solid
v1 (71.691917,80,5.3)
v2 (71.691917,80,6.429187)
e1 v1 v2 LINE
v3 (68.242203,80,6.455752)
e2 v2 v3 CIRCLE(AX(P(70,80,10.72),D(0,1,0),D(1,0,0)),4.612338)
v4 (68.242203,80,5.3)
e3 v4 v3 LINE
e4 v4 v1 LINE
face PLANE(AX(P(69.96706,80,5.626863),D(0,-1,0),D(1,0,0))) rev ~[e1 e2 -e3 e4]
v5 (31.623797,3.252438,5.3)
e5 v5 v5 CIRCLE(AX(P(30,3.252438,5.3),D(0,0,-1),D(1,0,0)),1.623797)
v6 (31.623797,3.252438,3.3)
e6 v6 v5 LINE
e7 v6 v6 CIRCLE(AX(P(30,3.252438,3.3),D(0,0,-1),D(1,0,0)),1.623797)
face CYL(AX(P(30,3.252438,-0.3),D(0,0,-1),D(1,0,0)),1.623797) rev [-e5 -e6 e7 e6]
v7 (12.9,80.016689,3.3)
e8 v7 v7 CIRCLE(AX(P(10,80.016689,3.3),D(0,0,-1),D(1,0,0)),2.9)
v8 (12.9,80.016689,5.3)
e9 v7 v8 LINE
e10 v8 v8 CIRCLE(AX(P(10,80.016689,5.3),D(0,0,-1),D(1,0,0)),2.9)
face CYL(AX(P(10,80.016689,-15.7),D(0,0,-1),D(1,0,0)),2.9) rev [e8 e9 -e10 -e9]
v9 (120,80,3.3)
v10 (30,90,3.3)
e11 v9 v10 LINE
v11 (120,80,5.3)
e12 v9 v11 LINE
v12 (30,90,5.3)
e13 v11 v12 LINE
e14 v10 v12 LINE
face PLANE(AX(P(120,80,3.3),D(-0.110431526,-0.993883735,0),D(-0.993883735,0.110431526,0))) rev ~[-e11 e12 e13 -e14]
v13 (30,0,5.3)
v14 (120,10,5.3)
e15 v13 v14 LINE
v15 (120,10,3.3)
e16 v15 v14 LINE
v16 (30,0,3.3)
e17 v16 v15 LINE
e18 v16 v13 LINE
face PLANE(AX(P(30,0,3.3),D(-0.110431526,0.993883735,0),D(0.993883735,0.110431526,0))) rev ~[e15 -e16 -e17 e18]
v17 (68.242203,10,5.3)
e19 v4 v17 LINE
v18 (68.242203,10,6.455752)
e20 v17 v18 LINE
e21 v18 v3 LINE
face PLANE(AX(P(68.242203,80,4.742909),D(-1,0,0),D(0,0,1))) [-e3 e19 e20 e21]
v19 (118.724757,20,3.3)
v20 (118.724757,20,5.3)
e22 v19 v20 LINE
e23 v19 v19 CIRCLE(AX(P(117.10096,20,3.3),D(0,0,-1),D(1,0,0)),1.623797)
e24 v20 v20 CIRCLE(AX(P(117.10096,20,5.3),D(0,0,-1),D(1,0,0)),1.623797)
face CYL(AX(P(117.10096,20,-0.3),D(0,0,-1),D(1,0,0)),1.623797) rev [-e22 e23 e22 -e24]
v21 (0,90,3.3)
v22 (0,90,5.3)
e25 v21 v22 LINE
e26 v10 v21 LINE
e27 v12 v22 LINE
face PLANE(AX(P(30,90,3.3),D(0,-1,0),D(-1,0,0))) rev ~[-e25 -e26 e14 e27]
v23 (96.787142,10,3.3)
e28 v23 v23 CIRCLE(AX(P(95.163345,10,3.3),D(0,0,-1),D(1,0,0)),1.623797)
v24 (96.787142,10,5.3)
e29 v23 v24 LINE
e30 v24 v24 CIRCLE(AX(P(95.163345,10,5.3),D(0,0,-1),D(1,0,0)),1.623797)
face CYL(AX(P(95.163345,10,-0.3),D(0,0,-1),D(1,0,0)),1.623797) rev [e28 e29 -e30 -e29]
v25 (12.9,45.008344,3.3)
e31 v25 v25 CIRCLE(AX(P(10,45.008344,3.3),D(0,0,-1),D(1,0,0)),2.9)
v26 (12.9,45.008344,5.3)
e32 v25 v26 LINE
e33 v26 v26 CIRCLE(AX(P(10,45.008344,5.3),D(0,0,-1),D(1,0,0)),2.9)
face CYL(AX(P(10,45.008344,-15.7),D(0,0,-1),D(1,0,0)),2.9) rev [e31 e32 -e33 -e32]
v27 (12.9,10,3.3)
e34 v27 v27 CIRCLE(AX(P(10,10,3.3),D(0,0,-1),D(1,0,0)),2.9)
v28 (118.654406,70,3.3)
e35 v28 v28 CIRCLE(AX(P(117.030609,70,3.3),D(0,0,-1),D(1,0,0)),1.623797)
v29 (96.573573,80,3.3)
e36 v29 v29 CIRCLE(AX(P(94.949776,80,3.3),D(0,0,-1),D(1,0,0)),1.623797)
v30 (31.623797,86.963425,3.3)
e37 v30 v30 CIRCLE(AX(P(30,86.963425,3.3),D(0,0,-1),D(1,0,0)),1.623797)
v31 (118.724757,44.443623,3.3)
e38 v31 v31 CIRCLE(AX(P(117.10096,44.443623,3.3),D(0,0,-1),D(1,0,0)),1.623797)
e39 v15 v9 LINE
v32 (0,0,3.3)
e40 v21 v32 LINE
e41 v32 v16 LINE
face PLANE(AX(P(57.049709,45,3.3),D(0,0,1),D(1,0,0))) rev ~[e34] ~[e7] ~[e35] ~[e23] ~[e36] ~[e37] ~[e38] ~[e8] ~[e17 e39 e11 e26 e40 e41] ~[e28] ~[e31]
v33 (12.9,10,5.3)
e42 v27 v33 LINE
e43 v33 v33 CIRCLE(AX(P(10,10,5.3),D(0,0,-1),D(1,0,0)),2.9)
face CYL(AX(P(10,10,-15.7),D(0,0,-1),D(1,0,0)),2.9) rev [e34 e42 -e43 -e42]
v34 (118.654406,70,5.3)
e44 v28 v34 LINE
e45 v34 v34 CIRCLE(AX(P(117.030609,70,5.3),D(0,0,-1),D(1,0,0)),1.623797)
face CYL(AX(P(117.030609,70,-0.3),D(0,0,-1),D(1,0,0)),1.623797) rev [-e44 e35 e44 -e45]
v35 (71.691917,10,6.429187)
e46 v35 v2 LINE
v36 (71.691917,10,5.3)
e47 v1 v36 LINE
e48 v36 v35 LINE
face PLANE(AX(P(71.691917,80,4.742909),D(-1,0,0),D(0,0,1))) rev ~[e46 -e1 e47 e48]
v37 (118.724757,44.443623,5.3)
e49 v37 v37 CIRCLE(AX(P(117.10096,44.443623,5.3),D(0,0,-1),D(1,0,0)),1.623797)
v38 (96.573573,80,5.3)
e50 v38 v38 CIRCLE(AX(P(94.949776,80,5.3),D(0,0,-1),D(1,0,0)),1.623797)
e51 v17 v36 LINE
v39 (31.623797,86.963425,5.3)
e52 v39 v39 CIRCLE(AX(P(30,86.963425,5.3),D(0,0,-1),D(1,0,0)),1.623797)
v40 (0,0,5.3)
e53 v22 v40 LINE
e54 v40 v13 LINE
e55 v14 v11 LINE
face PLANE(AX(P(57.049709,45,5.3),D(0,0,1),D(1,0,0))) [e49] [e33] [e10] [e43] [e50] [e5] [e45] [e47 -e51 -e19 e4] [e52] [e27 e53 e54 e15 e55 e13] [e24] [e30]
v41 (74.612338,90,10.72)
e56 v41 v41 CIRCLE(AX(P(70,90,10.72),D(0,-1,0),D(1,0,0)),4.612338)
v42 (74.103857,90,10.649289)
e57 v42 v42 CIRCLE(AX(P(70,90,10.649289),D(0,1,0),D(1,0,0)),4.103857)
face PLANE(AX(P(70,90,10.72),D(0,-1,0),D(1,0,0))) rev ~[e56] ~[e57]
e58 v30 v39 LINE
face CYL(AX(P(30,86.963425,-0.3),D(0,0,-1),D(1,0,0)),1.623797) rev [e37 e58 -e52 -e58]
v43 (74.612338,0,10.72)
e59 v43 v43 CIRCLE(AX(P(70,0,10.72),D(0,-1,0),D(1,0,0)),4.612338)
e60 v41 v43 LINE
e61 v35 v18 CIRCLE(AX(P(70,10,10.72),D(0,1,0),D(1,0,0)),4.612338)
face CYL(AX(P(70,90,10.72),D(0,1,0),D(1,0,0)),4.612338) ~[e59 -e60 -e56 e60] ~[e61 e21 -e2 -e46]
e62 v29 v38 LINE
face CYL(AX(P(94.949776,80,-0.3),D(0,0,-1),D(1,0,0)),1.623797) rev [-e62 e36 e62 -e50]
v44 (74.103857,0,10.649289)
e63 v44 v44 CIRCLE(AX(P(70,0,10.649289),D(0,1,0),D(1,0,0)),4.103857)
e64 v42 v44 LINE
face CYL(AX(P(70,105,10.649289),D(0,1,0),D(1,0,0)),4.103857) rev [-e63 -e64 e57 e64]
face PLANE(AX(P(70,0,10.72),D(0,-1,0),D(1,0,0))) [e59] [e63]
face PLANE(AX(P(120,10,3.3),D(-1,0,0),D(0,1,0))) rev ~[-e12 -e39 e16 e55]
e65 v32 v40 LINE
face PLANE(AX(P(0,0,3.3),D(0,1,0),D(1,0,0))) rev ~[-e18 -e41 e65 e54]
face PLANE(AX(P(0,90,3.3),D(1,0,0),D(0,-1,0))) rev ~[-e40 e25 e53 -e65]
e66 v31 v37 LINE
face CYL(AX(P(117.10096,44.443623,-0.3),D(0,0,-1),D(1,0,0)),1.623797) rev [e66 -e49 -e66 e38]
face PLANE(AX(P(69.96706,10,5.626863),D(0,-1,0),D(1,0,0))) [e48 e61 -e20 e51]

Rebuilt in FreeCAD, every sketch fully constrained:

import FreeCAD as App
import Part
import Sketcher

doc = App.newDocument("Part")
params = doc.addObject("Spreadsheet::Sheet", "Params")
for row, (alias, value) in enumerate([
    ("pad1_length", "120 mm"),
    ("pad2_length", "90 mm"),
    ("pad3_length", "70 mm"),
    ("pad4_length", "10 mm"),
    ("sketch5_diameter", "5.8 mm"),
    ("pad5_length", "50 mm"),
    ("sketch6_width", "30 mm"),
    ("sketch6_height", "70 mm"),
    ("sketch6_height2", "90 mm"),
    ("pad6_length", "2 mm"),
], start=1):
    params.set(f"A{row}", alias)
    params.set(f"B{row}", "=" + value)
    params.setAlias(f"B{row}", alias)

body = doc.addObject("PartDesign::Body", "Body")

# Sketch on XZ plane
sketch1 = doc.addObject("Sketcher::SketchObject", "Sketch")
body.addObject(sketch1)
sketch1.AttachmentSupport = (doc.XZ_Plane, [""])
sketch1.MapMode = "FlatFace"
sketch1.addGeometry(Part.Circle(App.Vector(70, 3.5, 0), App.Vector(0, 0, 1), 4.1), False)
sketch1.addConstraint(Sketcher.Constraint("DistanceX", -1, 1, 0, 3, 70.0))
sketch1.addConstraint(Sketcher.Constraint("Diameter", 0, 8.207714))
sketch1.addConstraint(Sketcher.Constraint("DistanceY", -1, 1, 0, 3, 3.549289))
pad1 = doc.addObject("PartDesign::Pad", "Pad")
body.addObject(pad1)
pad1.Profile = sketch1
pad1.setExpression("Length", "Params.pad1_length")
body2 = doc.addObject("PartDesign::Body", "Body001")
doc.recompute()

body.Placement = App.Placement(App.Vector(0, 105, 0), App.Rotation(App.Vector(0, 0, 1), 0))
boolean = doc.addObject("PartDesign::Boolean", "Boolean")
body2.addObject(boolean)
boolean.Type = "Fuse"
boolean.addObjects([body])
body3 = doc.addObject("PartDesign::Body", "Body002")

# Sketch on XZ plane
sketch2 = doc.addObject("Sketcher::SketchObject", "Sketch001")
body3.addObject(sketch2)
sketch2.AttachmentSupport = (doc.getObject("XZ_Plane002"), [""])
sketch2.MapMode = "FlatFace"
sketch2.addGeometry(Part.Circle(App.Vector(70, 3.6, 0), App.Vector(0, 0, 1), 4.6), False)
sketch2.addConstraint(Sketcher.Constraint("DistanceX", -1, 1, 0, 3, 70.0))
sketch2.addConstraint(Sketcher.Constraint("DistanceY", -1, 1, 0, 3, 3.62))
sketch2.addConstraint(Sketcher.Constraint("Diameter", 0, 9.224676))
pad2 = doc.addObject("PartDesign::Pad", "Pad001")
body3.addObject(pad2)
pad2.Profile = sketch2
pad2.setExpression("Length", "Params.pad2_length")
body4 = doc.addObject("PartDesign::Body", "Body003")
doc.recompute()

body3.Placement = App.Placement(App.Vector(0, 90, 0), App.Rotation(App.Vector(0, 0, 1), 0))
boolean2 = doc.addObject("PartDesign::Boolean", "Boolean001")
body4.addObject(boolean2)
boolean2.Type = "Fuse"
boolean2.addObjects([body3])
doc.recompute()

boolean3 = doc.addObject("PartDesign::Boolean", "Boolean002")
body4.addObject(boolean3)
boolean3.Type = "Cut"
boolean3.addObjects([body2])
body5 = doc.addObject("PartDesign::Body", "Body004")

# Sketch on XZ plane
sketch3 = doc.addObject("Sketcher::SketchObject", "Sketch002")
body5.addObject(sketch3)
sketch3.AttachmentSupport = (doc.getObject("XZ_Plane004"), [""])
sketch3.MapMode = "FlatFace"
sketch3.addGeometry(Part.LineSegment(App.Vector(68.2, -0.6, 0), App.Vector(68.2, -2.4, 0)), False)
sketch3.addGeometry(Part.LineSegment(App.Vector(68.2, -2.4, 0), App.Vector(71.7, -2.4, 0)), False)
sketch3.addGeometry(Part.LineSegment(App.Vector(71.7, -2.4, 0), App.Vector(71.7, -0.6, 0)), False)
sketch3.addGeometry(Part.LineSegment(App.Vector(71.7, -0.6, 0), App.Vector(68.2, -0.6, 0)), False)
sketch3.addConstraint(Sketcher.Constraint("Coincident", 0, 2, 1, 1))
sketch3.addConstraint(Sketcher.Constraint("Coincident", 1, 2, 2, 1))
sketch3.addConstraint(Sketcher.Constraint("Coincident", 2, 2, 3, 1))
sketch3.addConstraint(Sketcher.Constraint("Coincident", 3, 2, 0, 1))
sketch3.addConstraint(Sketcher.Constraint("Vertical", 0))
sketch3.addConstraint(Sketcher.Constraint("Horizontal", 1))
sketch3.addConstraint(Sketcher.Constraint("Vertical", 2))
sketch3.addConstraint(Sketcher.Constraint("Horizontal", 3))
sketch3.addConstraint(Sketcher.Constraint("DistanceY", 0, 2, 0, 1, 1.767909))
sketch3.addConstraint(Sketcher.Constraint("DistanceX", 1, 1, 1, 2, 3.449714))
sketch3.addConstraint(Sketcher.Constraint("DistanceY", 0, 2, -1, 1, 2.357092))
sketch3.addConstraint(Sketcher.Constraint("DistanceX", -1, 1, 0, 2, 68.242203))
pad3 = doc.addObject("PartDesign::Pad", "Pad002")
body5.addObject(pad3)
pad3.Profile = sketch3
pad3.setExpression("Length", "Params.pad3_length")
body6 = doc.addObject("PartDesign::Body", "Body005")
doc.recompute()

body5.Placement = App.Placement(App.Vector(0, 80, 0), App.Rotation(App.Vector(0, 0, 1), 0))
boolean4 = doc.addObject("PartDesign::Boolean", "Boolean003")
body6.addObject(boolean4)
boolean4.Type = "Fuse"
boolean4.addObjects([body5])
doc.recompute()

boolean5 = doc.addObject("PartDesign::Boolean", "Boolean004")
body6.addObject(boolean5)
boolean5.Type = "Fuse"
boolean5.addObjects([body4])
body7 = doc.addObject("PartDesign::Body", "Body006")
doc.recompute()

body6.Placement = App.Placement(App.Vector(0, 0, -8.2), App.Rotation(App.Vector(0, 0, 1), 0))
boolean6 = doc.addObject("PartDesign::Boolean", "Boolean005")
body7.addObject(boolean6)
boolean6.Type = "Fuse"
boolean6.addObjects([body6])
body8 = doc.addObject("PartDesign::Body", "Body007")
body8.AllowCompound = True

# Sketch on XY plane
sketch4 = doc.addObject("Sketcher::SketchObject", "Sketch003")
body8.addObject(sketch4)
sketch4.AttachmentSupport = (doc.getObject("XY_Plane007"), [""])
sketch4.MapMode = "FlatFace"
sketch4.AttachmentOffset = App.Placement(App.Vector(0, 0, 12.1), App.Rotation())
sketch4.addGeometry(Part.Circle(App.Vector(30, 87, 0), App.Vector(0, 0, 1), 1.6), False)
sketch4.addGeometry(Part.Circle(App.Vector(30, 3.3, 0), App.Vector(0, 0, 1), 1.6), False)
sketch4.addGeometry(Part.Circle(App.Vector(95.2, 10, 0), App.Vector(0, 0, 1), 1.6), False)
sketch4.addGeometry(Part.Circle(App.Vector(94.9, 80, 0), App.Vector(0, 0, 1), 1.6), False)
sketch4.addGeometry(Part.Circle(App.Vector(117.1, 20, 0), App.Vector(0, 0, 1), 1.6), False)
sketch4.addGeometry(Part.Circle(App.Vector(117, 70, 0), App.Vector(0, 0, 1), 1.6), False)
sketch4.addGeometry(Part.Circle(App.Vector(117.1, 44.4, 0), App.Vector(0, 0, 1), 1.6), False)
sketch4.addConstraint(Sketcher.Constraint("Equal", 0, 1))
sketch4.addConstraint(Sketcher.Constraint("Equal", 1, 2))
sketch4.addConstraint(Sketcher.Constraint("Equal", 2, 3))
sketch4.addConstraint(Sketcher.Constraint("Equal", 3, 4))
sketch4.addConstraint(Sketcher.Constraint("Equal", 4, 5))
sketch4.addConstraint(Sketcher.Constraint("Equal", 5, 6))
sketch4.addConstraint(Sketcher.Constraint("Vertical", 0, 3, 1, 3))
sketch4.addConstraint(Sketcher.Constraint("Vertical", 4, 3, 6, 3))
sketch4.addConstraint(Sketcher.Constraint("DistanceX", -1, 1, 0, 3, 30.0))
sketch4.addConstraint(Sketcher.Constraint("DistanceY", -1, 1, 2, 3, 10.0))
sketch4.addConstraint(Sketcher.Constraint("DistanceY", -1, 1, 3, 3, 80.0))
sketch4.addConstraint(Sketcher.Constraint("DistanceY", -1, 1, 4, 3, 20.0))
sketch4.addConstraint(Sketcher.Constraint("DistanceY", -1, 1, 5, 3, 70.0))
sketch4.addConstraint(Sketcher.Constraint("Diameter", 0, 3.247594))
sketch4.addConstraint(Sketcher.Constraint("DistanceY", -1, 1, 1, 3, 3.252438))
sketch4.addConstraint(Sketcher.Constraint("DistanceX", -1, 1, 4, 3, 117.10096))
sketch4.addConstraint(Sketcher.Constraint("DistanceX", -1, 1, 5, 3, 117.030609))
sketch4.addConstraint(Sketcher.Constraint("DistanceX", 3, 3, 2, 3, 0.213569))
sketch4.addConstraint(Sketcher.Constraint("DistanceY", -1, 1, 0, 3, 86.963425))
sketch4.addConstraint(Sketcher.Constraint("DistanceX", -1, 1, 2, 3, 95.163345))
sketch4.addConstraint(Sketcher.Constraint("DistanceY", -1, 1, 6, 3, 44.443623))
pad4 = doc.addObject("PartDesign::Pad", "Pad003")
body8.addObject(pad4)
pad4.Profile = sketch4
pad4.setExpression("Length", "Params.pad4_length")
body9 = doc.addObject("PartDesign::Body", "Body008")
body9.AllowCompound = True
doc.recompute()

body8.Placement = App.Placement(App.Vector(0, 0, -27.7), App.Rotation(App.Vector(0, 0, 1), 0))
boolean7 = doc.addObject("PartDesign::Boolean", "Boolean006")
body9.addObject(boolean7)
boolean7.Type = "Fuse"
boolean7.addObjects([body8])
body10 = doc.addObject("PartDesign::Body", "Body009")
body10.AllowCompound = True

# Sketch on XY plane
sketch5 = doc.addObject("Sketcher::SketchObject", "Sketch004")
body10.addObject(sketch5)
sketch5.AttachmentSupport = (doc.getObject("XY_Plane009"), [""])
sketch5.MapMode = "FlatFace"
sketch5.AttachmentOffset = App.Placement(App.Vector(0, 0, 2), App.Rotation())
sketch5.addGeometry(Part.Circle(App.Vector(10, 80, 0), App.Vector(0, 0, 1), 2.9), False)
sketch5.addGeometry(Part.Circle(App.Vector(10, 45, 0), App.Vector(0, 0, 1), 2.9), False)
sketch5.addGeometry(Part.Circle(App.Vector(10, 10, 0), App.Vector(0, 0, 1), 2.9), False)
sketch5.addConstraint(Sketcher.Constraint("Equal", 0, 1))
sketch5.addConstraint(Sketcher.Constraint("Equal", 1, 2))
sketch5.addConstraint(Sketcher.Constraint("Vertical", 0, 3, 1, 3))
sketch5.addConstraint(Sketcher.Constraint("Vertical", 1, 3, 2, 3))
sketch5.addConstraint(Sketcher.Constraint("Diameter", 0, 5.8))
sketch5.addConstraint(Sketcher.Constraint("DistanceX", -1, 1, 0, 3, 10.0))
sketch5.addConstraint(Sketcher.Constraint("DistanceY", -1, 1, 2, 3, 10.0))
sketch5.addConstraint(Sketcher.Constraint("DistanceY", -1, 1, 0, 3, 80.016689))
sketch5.addConstraint(Sketcher.Constraint("DistanceY", -1, 1, 1, 3, 45.008344))
sketch5.setExpression("Constraints[4]", "Params.sketch5_diameter")
pad5 = doc.addObject("PartDesign::Pad", "Pad004")
body10.addObject(pad5)
pad5.Profile = sketch5
pad5.setExpression("Length", "Params.pad5_length")
body11 = doc.addObject("PartDesign::Body", "Body010")
body11.AllowCompound = True
doc.recompute()

body10.Placement = App.Placement(App.Vector(0, 0, -21), App.Rotation(App.Vector(0, 0, 1), 0))
boolean8 = doc.addObject("PartDesign::Boolean", "Boolean007")
body11.addObject(boolean8)
boolean8.Type = "Fuse"
boolean8.addObjects([body10])
body12 = doc.addObject("PartDesign::Body", "Body011")

# Sketch on XY plane
sketch6 = doc.addObject("Sketcher::SketchObject", "Sketch005")
body12.addObject(sketch6)
sketch6.AttachmentSupport = (doc.getObject("XY_Plane011"), [""])
sketch6.MapMode = "FlatFace"
sketch6.addGeometry(Part.LineSegment(App.Vector(0, 0, 0), App.Vector(30, 0, 0)), False)
sketch6.addGeometry(Part.LineSegment(App.Vector(30, 0, 0), App.Vector(120, 10, 0)), False)
sketch6.addGeometry(Part.LineSegment(App.Vector(120, 10, 0), App.Vector(120, 80, 0)), False)
sketch6.addGeometry(Part.LineSegment(App.Vector(120, 80, 0), App.Vector(30, 90, 0)), False)
sketch6.addGeometry(Part.LineSegment(App.Vector(30, 90, 0), App.Vector(0, 90, 0)), False)
sketch6.addGeometry(Part.LineSegment(App.Vector(0, 90, 0), App.Vector(0, 0, 0)), False)
sketch6.addConstraint(Sketcher.Constraint("Coincident", 0, 2, 1, 1))
sketch6.addConstraint(Sketcher.Constraint("Coincident", 1, 2, 2, 1))
sketch6.addConstraint(Sketcher.Constraint("Coincident", 2, 2, 3, 1))
sketch6.addConstraint(Sketcher.Constraint("Coincident", 3, 2, 4, 1))
sketch6.addConstraint(Sketcher.Constraint("Coincident", 4, 2, 5, 1))
sketch6.addConstraint(Sketcher.Constraint("Coincident", 5, 2, 0, 1))
sketch6.addConstraint(Sketcher.Constraint("Horizontal", 0))
sketch6.addConstraint(Sketcher.Constraint("Vertical", 2))
sketch6.addConstraint(Sketcher.Constraint("Horizontal", 4))
sketch6.addConstraint(Sketcher.Constraint("Vertical", 5))
sketch6.addConstraint(Sketcher.Constraint("Coincident", 5, 2, -1, 1))
sketch6.addConstraint(Sketcher.Constraint("Vertical", 0, 2, 3, 2))
sketch6.addConstraint(Sketcher.Constraint("Equal", 1, 3))
sketch6.addConstraint(Sketcher.Constraint("DistanceX", 0, 1, 0, 2, 30.0))
sketch6.addConstraint(Sketcher.Constraint("DistanceY", 2, 1, 2, 2, 70.0))
sketch6.addConstraint(Sketcher.Constraint("DistanceY", 5, 2, 5, 1, 90.0))
sketch6.addConstraint(Sketcher.Constraint("DistanceX", -1, 1, 1, 2, 120.0))
sketch6.setExpression("Constraints[13]", "Params.sketch6_width")
sketch6.setExpression("Constraints[14]", "Params.sketch6_height")
sketch6.setExpression("Constraints[15]", "Params.sketch6_height2")
pad6 = doc.addObject("PartDesign::Pad", "Pad005")
body12.addObject(pad6)
pad6.Profile = sketch6
pad6.setExpression("Length", "Params.pad6_length")
doc.recompute()

boolean9 = doc.addObject("PartDesign::Boolean", "Boolean008")
body12.addObject(boolean9)
boolean9.Type = "Cut"
boolean9.addObjects([body11])
body13 = doc.addObject("PartDesign::Body", "Body012")
doc.recompute()

body12.Placement = App.Placement(App.Vector(0, 0, -12), App.Rotation(App.Vector(0, 0, 1), 0))
boolean10 = doc.addObject("PartDesign::Boolean", "Boolean009")
body13.addObject(boolean10)
boolean10.Type = "Fuse"
boolean10.addObjects([body12])
doc.recompute()

boolean11 = doc.addObject("PartDesign::Boolean", "Boolean010")
body13.addObject(boolean11)
boolean11.Type = "Cut"
boolean11.addObjects([body9])
doc.recompute()

boolean12 = doc.addObject("PartDesign::Boolean", "Boolean011")
body13.addObject(boolean12)
boolean12.Type = "Fuse"
boolean12.addObjects([body7])
body14 = doc.addObject("PartDesign::Body", "Body013")
doc.recompute()

body13.Placement = App.Placement(App.Vector(0, 0, 15.3), App.Rotation(App.Vector(0, 0, 1), 0))
boolean13 = doc.addObject("PartDesign::Boolean", "Boolean012")
body14.addObject(boolean13)
boolean13.Type = "Fuse"
boolean13.addObjects([body13])

doc.recompute()
